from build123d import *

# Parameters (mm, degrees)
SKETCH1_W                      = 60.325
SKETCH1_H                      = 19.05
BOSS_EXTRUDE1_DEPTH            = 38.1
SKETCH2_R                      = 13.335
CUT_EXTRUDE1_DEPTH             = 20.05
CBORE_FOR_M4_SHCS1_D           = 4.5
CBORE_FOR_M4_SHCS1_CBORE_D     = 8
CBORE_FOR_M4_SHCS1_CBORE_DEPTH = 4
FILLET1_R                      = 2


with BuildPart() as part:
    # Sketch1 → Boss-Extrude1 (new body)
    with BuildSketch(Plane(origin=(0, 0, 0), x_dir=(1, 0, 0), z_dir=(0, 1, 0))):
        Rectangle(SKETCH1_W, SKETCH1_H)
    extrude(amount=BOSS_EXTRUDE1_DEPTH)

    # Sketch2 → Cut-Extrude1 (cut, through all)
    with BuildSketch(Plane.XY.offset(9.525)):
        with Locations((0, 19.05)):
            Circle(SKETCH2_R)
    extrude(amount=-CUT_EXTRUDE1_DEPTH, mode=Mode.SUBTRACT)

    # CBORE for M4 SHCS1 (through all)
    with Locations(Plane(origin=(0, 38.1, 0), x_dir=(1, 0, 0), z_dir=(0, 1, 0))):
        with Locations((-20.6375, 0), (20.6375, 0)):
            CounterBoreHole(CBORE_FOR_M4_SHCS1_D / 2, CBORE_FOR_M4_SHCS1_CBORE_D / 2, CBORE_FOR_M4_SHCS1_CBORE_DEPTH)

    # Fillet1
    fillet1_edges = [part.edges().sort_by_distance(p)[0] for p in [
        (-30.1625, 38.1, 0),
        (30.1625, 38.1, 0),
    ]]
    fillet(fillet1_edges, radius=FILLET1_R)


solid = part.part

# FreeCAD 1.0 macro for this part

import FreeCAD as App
import Part
import Sketcher

V = App.Vector
Q = App.Units.Quantity


def edges_at(feature, points):
    """Names of the edges that pass closest to the given points."""
    edges = feature.Shape.Edges
    near = lambda p: min(range(len(edges)), key=lambda i: edges[i].distToShape(Part.Vertex(*p))[0])
    return sorted({f"Edge{near(p) + 1}" for p in points})


def add_polygon(sketch, points):
    """Adds a closed chain of lines whose ends are joined by coincident constraints."""
    first, n = sketch.GeometryCount, len(points)
    for a, b in zip(points, points[1:] + points[:1]):
        sketch.addGeometry(Part.LineSegment(App.Vector(*a, 0), App.Vector(*b, 0)), False)
    for i in range(n):
        sketch.addConstraint(Sketcher.Constraint("Coincident", first + i, 2, first + (i + 1) % n, 1))

doc = App.newDocument("Part")
body = doc.addObject("PartDesign::Body", "Body")

# Sketch on XZ plane
sketch1 = body.newObject("Sketcher::SketchObject", "Sketch")
sketch1.AttachmentSupport = (doc.getObject("XZ_Plane"), [""])
sketch1.MapMode = "FlatFace"
add_polygon(sketch1, [(-30, -10), (-30, 10), (30, 10), (30, -10)])  # lines 0-3
sketch1.addConstraint(Sketcher.Constraint("Vertical", 0))
sketch1.addConstraint(Sketcher.Constraint("Horizontal", 1))
sketch1.addConstraint(Sketcher.Constraint("Vertical", 2))
sketch1.addConstraint(Sketcher.Constraint("Horizontal", 3))
sketch1.addConstraint(Sketcher.Constraint("Symmetric", 0, 2, 2, 2, -1, 1))
sketch1.addConstraint(Sketcher.Constraint("DistanceY", 0, 1, 0, 2, Q("0.75 in")))
sketch1.addConstraint(Sketcher.Constraint("DistanceX", 1, 1, 1, 2, Q("2.375 in")))
pad1 = body.newObject("PartDesign::Pad", "Pad")
pad1.Profile = sketch1
pad1.Length = Q("1.5 in")
pad1.Reversed = True

# Sketch on XY plane
sketch2 = body.newObject("Sketcher::SketchObject", "Sketch001")
sketch2.AttachmentSupport = (doc.getObject("XY_Plane"), [""])
sketch2.MapMode = "FlatFace"
sketch2.AttachmentOffset = App.Placement(V(0, 0, 0.375 * 25.4), App.Rotation())
sketch2.addGeometry(Part.Circle(V(0, 19, 0), V(0, 0, 1), 13), False)
sketch2.addConstraint(Sketcher.Constraint("PointOnObject", 0, 3, -2))
sketch2.addConstraint(Sketcher.Constraint("Diameter", 0, Q("1.05 in")))
sketch2.addConstraint(Sketcher.Constraint("DistanceY", -1, 1, 0, 3, Q("0.75 in")))
pocket1 = body.newObject("PartDesign::Pocket", "Pocket")
pocket1.Profile = sketch2
pocket1.Type = "ThroughAll"

# Sketch on XZ plane
sketch3 = body.newObject("Sketcher::SketchObject", "Sketch002")
sketch3.AttachmentSupport = (doc.getObject("XZ_Plane"), [""])
sketch3.MapMode = "FlatFace"
sketch3.AttachmentOffset = App.Placement(V(0, 0, -1.5 * 25.4), App.Rotation())
sketch3.addGeometry(Part.Circle(V(-20.6, 0, 0), V(0, 0, 1), 2.2), False)
sketch3.addGeometry(Part.Circle(V(20.6, 0, 0), V(0, 0, 1), 2.2), False)
sketch3.addConstraint(Sketcher.Constraint("Equal", 0, 1))
sketch3.addConstraint(Sketcher.Constraint("Symmetric", 0, 3, 1, 3, -1, 1))
sketch3.addConstraint(Sketcher.Constraint("PointOnObject", 0, 3, -1))
sketch3.addConstraint(Sketcher.Constraint("Diameter", 0, 4.5))
sketch3.addConstraint(Sketcher.Constraint("DistanceX", 0, 3, -1, 1, Q("0.8125 in")))
doc.recompute()
hole = body.newObject("PartDesign::Hole", "Hole")
hole.Profile = sketch3
hole.ThreadType = "None"
hole.Diameter = 4.5
hole.DepthType = "ThroughAll"
hole.HoleCutType = "Counterbore"
hole.HoleCutDiameter = 8
hole.HoleCutDepth = 4
hole.Reversed = True
doc.recompute()

fillet = body.newObject("PartDesign::Fillet", "Fillet")
fillet.Base = (hole, edges_at(hole, [(-30.163, 38.1, 0), (30.163, 38.1, 0)]))
fillet.Radius = 2

doc.recompute()
